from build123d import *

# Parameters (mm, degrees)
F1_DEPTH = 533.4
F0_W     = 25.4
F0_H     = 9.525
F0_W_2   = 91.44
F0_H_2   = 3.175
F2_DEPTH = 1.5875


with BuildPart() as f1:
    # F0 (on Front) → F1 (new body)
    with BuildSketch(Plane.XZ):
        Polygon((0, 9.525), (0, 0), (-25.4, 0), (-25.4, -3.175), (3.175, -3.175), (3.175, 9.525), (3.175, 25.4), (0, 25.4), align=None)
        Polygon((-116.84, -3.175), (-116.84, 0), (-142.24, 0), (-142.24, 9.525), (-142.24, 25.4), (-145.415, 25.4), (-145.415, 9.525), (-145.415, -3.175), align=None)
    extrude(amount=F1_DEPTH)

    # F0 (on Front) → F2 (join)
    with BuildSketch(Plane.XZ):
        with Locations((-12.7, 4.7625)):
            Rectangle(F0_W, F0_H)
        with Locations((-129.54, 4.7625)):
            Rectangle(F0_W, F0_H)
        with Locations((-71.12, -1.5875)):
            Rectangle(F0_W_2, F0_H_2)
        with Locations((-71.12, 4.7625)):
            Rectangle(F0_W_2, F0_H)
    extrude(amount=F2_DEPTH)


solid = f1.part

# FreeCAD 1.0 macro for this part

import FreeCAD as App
import Part
import Sketcher
from FreeCAD import Vector
Q = App.Units.Quantity


def add_polygon(sketch, points):
    """Adds a closed chain of lines whose ends are joined by coincident constraints."""
    first, n = sketch.GeometryCount, len(points)
    for a, b in zip(points, points[1:] + points[:1]):
        sketch.addGeometry(Part.LineSegment(App.Vector(*a, 0), App.Vector(*b, 0)), False)
    for i in range(n):
        sketch.addConstraint(Sketcher.Constraint("Coincident", first + i, 2, first + (i + 1) % n, 1))

doc = App.newDocument("Part")
body = doc.addObject("PartDesign::Body", "Body")
body.AllowCompound = True

# Sketch on XZ plane
sketch1 = body.newObject("Sketcher::SketchObject", "Sketch")
sketch1.AttachmentSupport = (doc.getObject("XZ_Plane"), [""])
sketch1.MapMode = "FlatFace"
add_polygon(sketch1, [(0, 0), (-25.4, 0), (-25.4, -3.2), (3.2, -3.2), (3.2, 25.4), (0, 25.4)])  # lines 0-5
add_polygon(sketch1, [(-116.8, -3.2), (-116.8, 0), (-142.2, 0), (-142.2, 25.4), (-145.4, 25.4), (-145.4, -3.2)])  # lines 6-11
sketch1.addConstraint([
    Sketcher.Constraint("Horizontal", 0),
    Sketcher.Constraint("Vertical", 1),
    Sketcher.Constraint("Horizontal", 2),
    Sketcher.Constraint("Vertical", 3),
    Sketcher.Constraint("Horizontal", 4),
    Sketcher.Constraint("Vertical", 5),
    Sketcher.Constraint("Vertical", 6),
    Sketcher.Constraint("Horizontal", 7),
    Sketcher.Constraint("Vertical", 8),
    Sketcher.Constraint("Horizontal", 9),
    Sketcher.Constraint("Vertical", 10),
    Sketcher.Constraint("Horizontal", 11),
    Sketcher.Constraint("Coincident", 5, 2, -1, 1),
    Sketcher.Constraint("PointOnObject", 6, 2, -1),
    Sketcher.Constraint("Horizontal", 4, 2, 8, 2),
    Sketcher.Constraint("Horizontal", 2, 2, 10, 2),
    Sketcher.Constraint("Equal", 0, 7),
    Sketcher.Constraint("Equal", 4, 9),
    Sketcher.Constraint("Equal", 9, 1),
    Sketcher.Constraint("Equal", 11, 3),
    Sketcher.Constraint("DistanceX", 0, 2, 0, 1, Q("1 in")),
    Sketcher.Constraint("DistanceX", 6, 2, -1, 1, Q("4.6 in")),
    Sketcher.Constraint("DistanceX", 2, 1, 2, 2, Q("1.125 in")),
])
pad1 = body.newObject("PartDesign::Pad", "Pad")
pad1.Profile = sketch1
pad1.Length = Q("21 in")

# Sketch on XZ plane
sketch2 = body.newObject("Sketcher::SketchObject", "Sketch001")
sketch2.AttachmentSupport = (doc.getObject("XZ_Plane"), [""])
sketch2.MapMode = "FlatFace"
add_polygon(sketch2, [(-25.4, 0), (0, 0), (0, 9.5), (-142.2, 9.5), (-142.2, 0), (-116.8, 0), (-116.8, -3.2), (-25.4, -3.2)])  # lines 0-7
sketch2.addConstraint([
    Sketcher.Constraint("Horizontal", 0),
    Sketcher.Constraint("Vertical", 1),
    Sketcher.Constraint("Horizontal", 2),
    Sketcher.Constraint("Vertical", 3),
    Sketcher.Constraint("Horizontal", 4),
    Sketcher.Constraint("Vertical", 5),
    Sketcher.Constraint("Horizontal", 6),
    Sketcher.Constraint("Vertical", 7),
    Sketcher.Constraint("Coincident", 0, 2, -1, 1),
    Sketcher.Constraint("PointOnObject", 3, 2, -1),
    Sketcher.Constraint("Equal", 0, 4),
    Sketcher.Constraint("DistanceX", 0, 1, 0, 2, Q("1 in")),
    Sketcher.Constraint("DistanceX", 2, 2, 2, 1, Q("5.6 in")),
    Sketcher.Constraint("DistanceY", 5, 2, 2, 2, Q("0.5 in")),
    Sketcher.Constraint("DistanceY", 1, 1, 1, 2, Q("0.375 in")),
])
pad2 = body.newObject("PartDesign::Pad", "Pad001")
pad2.Profile = sketch2
pad2.Length = Q("0.0625 in")

doc.recompute()
